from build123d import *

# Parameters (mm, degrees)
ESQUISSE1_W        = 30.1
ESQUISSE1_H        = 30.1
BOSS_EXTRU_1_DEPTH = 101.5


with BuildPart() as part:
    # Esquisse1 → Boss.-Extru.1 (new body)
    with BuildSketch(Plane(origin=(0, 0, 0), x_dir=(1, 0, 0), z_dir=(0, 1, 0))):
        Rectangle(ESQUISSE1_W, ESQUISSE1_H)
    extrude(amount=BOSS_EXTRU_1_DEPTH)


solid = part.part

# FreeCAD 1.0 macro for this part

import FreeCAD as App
import Part
import Sketcher

V = App.Vector

doc = App.newDocument("Part")
params = doc.addObject("Spreadsheet::Sheet", "Params")
for row, (alias, value) in enumerate([
    ("sketch1_width", "30.1 mm"),
    ("pad1_length", "101.5 mm"),
], start=1):
    params.set(f"A{row}", alias)
    params.set(f"B{row}", "=" + value)
    params.setAlias(f"B{row}", alias)

body = doc.addObject("PartDesign::Body", "Body")

sketch1 = body.newObject("Sketcher::SketchObject", "Sketch")
sketch1.AttachmentSupport = (doc.getObject("XZ_Plane"), [""])
sketch1.MapMode = "FlatFace"
sketch1.addGeometry([
    Part.LineSegment(V(-15, -15, 0), V(-15, 15, 0)),
    Part.LineSegment(V(-15, 15, 0), V(15, 15, 0)),
    Part.LineSegment(V(15, 15, 0), V(15, -15, 0)),
    Part.LineSegment(V(15, -15, 0), V(-15, -15, 0)),
], False)
sketch1.addConstraint([
    Sketcher.Constraint("Coincident", 0, 2, 1, 1),
    Sketcher.Constraint("Coincident", 1, 2, 2, 1),
    Sketcher.Constraint("Coincident", 2, 2, 3, 1),
    Sketcher.Constraint("Coincident", 3, 2, 0, 1),
    Sketcher.Constraint("Vertical", 0),
    Sketcher.Constraint("Horizontal", 1),
    Sketcher.Constraint("Vertical", 2),
    Sketcher.Constraint("Horizontal", 3),
    Sketcher.Constraint("Symmetric", 0, 2, 2, 2, -1, 1),
    Sketcher.Constraint("Equal", 3, 0),
    Sketcher.Constraint("DistanceX", 1, 1, 1, 2, 30.1),
])
sketch1.setExpression("Constraints[10]", "Params.sketch1_width")
pad1 = body.newObject("PartDesign::Pad", "Pad")
pad1.Profile = sketch1
pad1.setExpression("Length", "Params.pad1_length")
pad1.Reversed = True

doc.recompute()
